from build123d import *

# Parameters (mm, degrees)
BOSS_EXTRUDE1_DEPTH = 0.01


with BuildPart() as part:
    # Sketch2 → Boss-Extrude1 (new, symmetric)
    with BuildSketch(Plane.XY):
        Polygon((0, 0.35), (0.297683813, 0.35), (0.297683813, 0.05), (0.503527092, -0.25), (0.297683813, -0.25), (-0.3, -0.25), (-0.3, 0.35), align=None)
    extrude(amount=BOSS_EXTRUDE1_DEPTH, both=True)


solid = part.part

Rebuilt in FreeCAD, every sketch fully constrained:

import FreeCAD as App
import Part
import Sketcher
Q = App.Units.Quantity


def add_polygon(sketch, points):
    """Adds a closed chain of lines whose ends are joined by coincident constraints."""
    first, n = sketch.GeometryCount, len(points)
    for a, b in zip(points, points[1:] + points[:1]):
        sketch.addGeometry(Part.LineSegment(App.Vector(*a, 0), App.Vector(*b, 0)), False)
    for i in range(n):
        sketch.addConstraint(Sketcher.Constraint("Coincident", first + i, 2, first + (i + 1) % n, 1))

doc = App.newDocument("Part")
body = doc.addObject("PartDesign::Body", "Body")

# Sketch on XY plane
sketch1 = body.newObject("Sketcher::SketchObject", "Sketch")
sketch1.AttachmentSupport = (doc.getObject("XY_Plane"), [""])
sketch1.MapMode = "FlatFace"
add_polygon(sketch1, [(0.3, 0.35), (-0.3, 0.35), (-0.3, -0.25), (0.5, -0.25), (0.3, 0.05)])  # lines 0-4
sketch1.addConstraint([
    Sketcher.Constraint("Horizontal", 0),
    Sketcher.Constraint("Vertical", 1),
    Sketcher.Constraint("Horizontal", 2),
    Sketcher.Constraint("Vertical", 4),
    Sketcher.Constraint("DistanceY", 1, 2, 1, 1, Q("0.6 mm")),
    Sketcher.Constraint("DistanceY", 4, 1, 4, 2, Q("0.3 mm")),
    Sketcher.Constraint("DistanceX", 0, 2, -1, 1, Q("0.3 mm")),
    Sketcher.Constraint("DistanceY", -1, 1, 0, 2, Q("0.35 mm")),
    Sketcher.Constraint("Distance", 3, Q("0.363829 mm")),
    Sketcher.Constraint("DistanceX", 0, 2, 0, 1, Q("0.597684 mm")),
])
pad1 = body.newObject("PartDesign::Pad", "Pad")
pad1.Profile = sketch1
pad1.Length = 0.02
pad1.Midplane = True

doc.recompute()
